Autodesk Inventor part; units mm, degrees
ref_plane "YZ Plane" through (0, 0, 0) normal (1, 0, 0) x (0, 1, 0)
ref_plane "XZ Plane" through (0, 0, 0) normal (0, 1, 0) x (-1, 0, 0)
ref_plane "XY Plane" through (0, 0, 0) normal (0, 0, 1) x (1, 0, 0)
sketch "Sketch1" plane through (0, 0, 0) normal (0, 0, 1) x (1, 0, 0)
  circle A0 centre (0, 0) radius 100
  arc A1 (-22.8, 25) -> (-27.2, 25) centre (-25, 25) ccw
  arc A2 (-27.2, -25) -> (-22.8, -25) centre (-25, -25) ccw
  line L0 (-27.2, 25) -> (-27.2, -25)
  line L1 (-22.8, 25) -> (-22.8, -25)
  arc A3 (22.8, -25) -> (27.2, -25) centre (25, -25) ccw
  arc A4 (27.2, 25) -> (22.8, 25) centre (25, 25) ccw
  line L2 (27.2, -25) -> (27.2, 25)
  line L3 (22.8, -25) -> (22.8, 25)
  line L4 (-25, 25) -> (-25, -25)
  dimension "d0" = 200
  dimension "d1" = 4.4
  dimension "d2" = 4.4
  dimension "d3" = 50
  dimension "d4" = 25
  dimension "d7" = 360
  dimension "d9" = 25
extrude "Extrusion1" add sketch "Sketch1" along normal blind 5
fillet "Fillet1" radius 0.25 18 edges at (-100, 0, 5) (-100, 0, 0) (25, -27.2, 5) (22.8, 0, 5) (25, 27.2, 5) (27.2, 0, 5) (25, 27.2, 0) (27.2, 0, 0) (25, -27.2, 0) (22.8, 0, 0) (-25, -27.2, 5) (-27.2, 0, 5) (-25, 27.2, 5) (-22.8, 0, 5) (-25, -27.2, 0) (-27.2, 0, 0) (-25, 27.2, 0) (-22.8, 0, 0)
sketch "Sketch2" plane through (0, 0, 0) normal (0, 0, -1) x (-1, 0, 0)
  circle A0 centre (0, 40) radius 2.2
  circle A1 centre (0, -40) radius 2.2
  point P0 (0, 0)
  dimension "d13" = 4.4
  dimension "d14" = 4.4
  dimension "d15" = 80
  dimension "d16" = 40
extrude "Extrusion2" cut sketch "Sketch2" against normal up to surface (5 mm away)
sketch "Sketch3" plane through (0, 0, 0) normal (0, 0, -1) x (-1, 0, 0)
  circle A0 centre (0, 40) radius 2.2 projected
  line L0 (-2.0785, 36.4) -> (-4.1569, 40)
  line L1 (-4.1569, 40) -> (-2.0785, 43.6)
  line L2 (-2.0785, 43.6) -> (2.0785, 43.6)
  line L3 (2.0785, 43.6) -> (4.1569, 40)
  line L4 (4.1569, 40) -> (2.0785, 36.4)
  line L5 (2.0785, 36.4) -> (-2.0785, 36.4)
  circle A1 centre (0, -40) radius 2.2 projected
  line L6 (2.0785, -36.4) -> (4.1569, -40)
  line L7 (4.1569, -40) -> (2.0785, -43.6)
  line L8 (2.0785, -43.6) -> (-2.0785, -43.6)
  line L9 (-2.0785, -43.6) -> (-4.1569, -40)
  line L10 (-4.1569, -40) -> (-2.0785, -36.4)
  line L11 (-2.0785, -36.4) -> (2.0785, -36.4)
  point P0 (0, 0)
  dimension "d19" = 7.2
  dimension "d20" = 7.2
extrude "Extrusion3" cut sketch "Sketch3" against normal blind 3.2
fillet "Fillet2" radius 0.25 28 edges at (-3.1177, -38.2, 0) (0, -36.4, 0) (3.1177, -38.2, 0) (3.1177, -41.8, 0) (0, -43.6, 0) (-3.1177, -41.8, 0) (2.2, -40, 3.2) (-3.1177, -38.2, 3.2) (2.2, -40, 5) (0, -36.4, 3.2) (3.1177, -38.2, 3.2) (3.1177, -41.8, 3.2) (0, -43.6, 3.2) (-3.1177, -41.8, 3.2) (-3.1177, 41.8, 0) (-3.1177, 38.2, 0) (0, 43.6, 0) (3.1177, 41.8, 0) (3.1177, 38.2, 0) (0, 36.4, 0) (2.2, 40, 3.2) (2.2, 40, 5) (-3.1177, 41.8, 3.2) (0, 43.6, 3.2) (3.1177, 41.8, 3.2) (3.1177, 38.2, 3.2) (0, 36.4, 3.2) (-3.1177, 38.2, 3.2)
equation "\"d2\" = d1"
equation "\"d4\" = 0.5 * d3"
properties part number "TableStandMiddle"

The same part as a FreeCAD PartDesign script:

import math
import FreeCAD as App
import Part
import Sketcher

V = App.Vector
Q = App.Units.Quantity


def edges_at(feature, points):
    """Names of the edges that pass closest to the given points."""
    edges = feature.Shape.Edges
    near = lambda p: min(range(len(edges)), key=lambda i: edges[i].distToShape(Part.Vertex(*p))[0])
    return sorted({f"Edge{near(p) + 1}" for p in points})


def add_polygon(sketch, points):
    """Adds a closed chain of lines whose ends are joined by coincident constraints."""
    first, n = sketch.GeometryCount, len(points)
    for a, b in zip(points, points[1:] + points[:1]):
        sketch.addGeometry(Part.LineSegment(App.Vector(*a, 0), App.Vector(*b, 0)), False)
    for i in range(n):
        sketch.addConstraint(Sketcher.Constraint("Coincident", first + i, 2, first + (i + 1) % n, 1))

doc = App.newDocument("Part")
body = doc.addObject("PartDesign::Body", "Body")

# Sketch on XY plane
sketch1 = body.newObject("Sketcher::SketchObject", "Sketch")
sketch1.AttachmentSupport = (doc.getObject("XY_Plane"), [""])
sketch1.MapMode = "FlatFace"
sketch1.addGeometry([
    Part.Circle(V(0, 0, 0), V(0, 0, 1), 100),  # 0
    Part.ArcOfCircle(Part.Circle(V(-25, 25, 0), V(0, 0, 1), 2.2), math.radians(0), math.radians(180)),  # 1
    Part.LineSegment(V(-22.8, 25, 0), V(-22.8, -25, 0)),  # 2
    Part.ArcOfCircle(Part.Circle(V(-25, -25, 0), V(0, 0, 1), 2.2), math.radians(180), math.radians(360)),  # 3
    Part.LineSegment(V(-27.2, -25, 0), V(-27.2, 25, 0)),  # 4
    Part.ArcOfCircle(Part.Circle(V(25, -25, 0), V(0, 0, 1), 2.2), math.radians(180), math.radians(360)),  # 5
    Part.LineSegment(V(22.8, -25, 0), V(22.8, 25, 0)),  # 6
    Part.ArcOfCircle(Part.Circle(V(25, 25, 0), V(0, 0, 1), 2.2), math.radians(0), math.radians(180)),  # 7
    Part.LineSegment(V(27.2, 25, 0), V(27.2, -25, 0)),  # 8
], False)
sketch1.addConstraint([
    Sketcher.Constraint("Tangent", 1, 1, 2, 1),
    Sketcher.Constraint("Tangent", 2, 2, 3, 2),
    Sketcher.Constraint("Tangent", 3, 1, 4, 1),
    Sketcher.Constraint("Tangent", 4, 2, 1, 2),
    Sketcher.Constraint("Tangent", 5, 1, 6, 1),
    Sketcher.Constraint("Tangent", 6, 2, 7, 2),
    Sketcher.Constraint("Tangent", 7, 1, 8, 1),
    Sketcher.Constraint("Tangent", 8, 2, 5, 2),
    Sketcher.Constraint("Vertical", 2),
    Sketcher.Constraint("Vertical", 4),
    Sketcher.Constraint("Vertical", 6),
    Sketcher.Constraint("Vertical", 8),
    Sketcher.Constraint("Coincident", 0, 3, -1, 1),
    Sketcher.Constraint("Equal", 3, 5),
    Sketcher.Constraint("Symmetric", 1, 3, 5, 3, -1, 1),
    Sketcher.Constraint("Horizontal", 3, 3, 5, 3),
    Sketcher.Constraint("Horizontal", 1, 3, 7, 3),
    Sketcher.Constraint("Diameter", 0, Q("200 mm")),
    Sketcher.Constraint("Radius", 1, Q("2.2 mm")),
    Sketcher.Constraint("DistanceY", 2, 2, 2, 1, Q("50 mm")),
    Sketcher.Constraint("DistanceX", 1, 3, -1, 1, Q("25 mm")),
])
pad1 = body.newObject("PartDesign::Pad", "Pad")
pad1.Profile = sketch1
pad1.Length = 5
doc.recompute()

fillet = body.newObject("PartDesign::Fillet", "Fillet")
fillet.Base = (pad1, edges_at(pad1, [
    (-100, 0, 5),
    (-100, 0, 0),
    (25, -27.2, 5),
    (22.8, 0, 5),
    (25, 27.2, 5),
    (27.2, 0, 5),
    (25, 27.2, 0),
    (27.2, 0, 0),
    (25, -27.2, 0),
    (22.8, 0, 0),
    (-25, -27.2, 5),
    (-27.2, 0, 5),
    (-25, 27.2, 5),
    (-22.8, 0, 5),
    (-25, -27.2, 0),
    (-27.2, 0, 0),
    (-25, 27.2, 0),
    (-22.8, 0, 0),
]))
fillet.Radius = 0.25

# Sketch on XY plane
sketch2 = body.newObject("Sketcher::SketchObject", "Sketch001")
sketch2.AttachmentSupport = (doc.getObject("XY_Plane"), [""])
sketch2.MapMode = "FlatFace"
sketch2.addGeometry([
    Part.Circle(V(0, 40, 0), V(0, 0, 1), 2.2),
    Part.Circle(V(0, -40, 0), V(0, 0, 1), 2.2),
], False)
sketch2.addConstraint([
    Sketcher.Constraint("Equal", 0, 1),
    Sketcher.Constraint("Symmetric", 0, 3, 1, 3, -1, 1),
    Sketcher.Constraint("PointOnObject", 0, 3, -2),
    Sketcher.Constraint("Diameter", 0, Q("4.4 mm")),
    Sketcher.Constraint("DistanceY", -1, 1, 0, 3, Q("40 mm")),
])
pocket1 = body.newObject("PartDesign::Pocket", "Pocket")
pocket1.Profile = sketch2
pocket1.Length = 5
pocket1.Reversed = True

# Sketch on XY plane
sketch3 = body.newObject("Sketcher::SketchObject", "Sketch002")
sketch3.AttachmentSupport = (doc.getObject("XY_Plane"), [""])
sketch3.MapMode = "FlatFace"
add_polygon(sketch3, [(4.1569, 40), (2.0785, 36.4), (-2.0785, 36.4), (-4.1569, 40), (-2.0785, 43.6), (2.0785, 43.6)])  # lines 0-5
sketch3.addGeometry(Part.Circle(V(0, 40, 0), V(0, 0, 1), 2.2), False)  # 6
add_polygon(sketch3, [(-4.1569, -40), (-2.0785, -36.4), (2.0785, -36.4), (4.1569, -40), (2.0785, -43.6), (-2.0785, -43.6)])  # lines 7-12
sketch3.addGeometry(Part.Circle(V(0, -40, 0), V(0, 0, 1), 2.2), False)  # 13
sketch3.addConstraint([
    Sketcher.Constraint("Horizontal", 1),
    Sketcher.Constraint("Horizontal", 4),
    Sketcher.Constraint("Horizontal", 8),
    Sketcher.Constraint("Horizontal", 11),
    Sketcher.Constraint("Equal", 6, 13),
    Sketcher.Constraint("Symmetric", 6, 3, 13, 3, -1, 1),
    Sketcher.Constraint("Symmetric", 0, 2, 7, 2, -1, 1),
    Sketcher.Constraint("Symmetric", 2, 2, 9, 2, -1, 1),
    Sketcher.Constraint("Symmetric", 3, 2, 10, 2, -1, 1),
    Sketcher.Constraint("Symmetric", 5, 2, 12, 2, -1, 1),
    Sketcher.Constraint("Symmetric", 2, 2, 5, 2, -2),
    Sketcher.Constraint("PointOnObject", 6, 3, -2),
    Sketcher.Constraint("Parallel", 0, 3),
    Sketcher.Constraint("Parallel", 2, 5),
    Sketcher.Constraint("Parallel", 5, 9),
    Sketcher.Constraint("Parallel", 9, 12),
    Sketcher.Constraint("Horizontal", 6, 3, 2, 2),
    Sketcher.Constraint("Vertical", 1, 2, 3, 2),
    Sketcher.Constraint("Vertical", 0, 2, 4, 2),
    Sketcher.Constraint("Diameter", 6, Q("4.4 mm")),
    Sketcher.Constraint("DistanceY", 1, 2, 3, 2, Q("7.2 mm")),
    Sketcher.Constraint("Angle", 0, Q("-119.9993 deg")),
    Sketcher.Constraint("DistanceY", -1, 1, 6, 3, Q("40 mm")),
    Sketcher.Constraint("DistanceX", 1, 2, 1, 1, Q("4.157 mm")),
])
pocket2 = body.newObject("PartDesign::Pocket", "Pocket001")
pocket2.Profile = sketch3
pocket2.Length = 3.2
pocket2.Reversed = True
doc.recompute()

fillet2 = body.newObject("PartDesign::Fillet", "Fillet001")
fillet2.Base = (pocket2, edges_at(pocket2, [
    (-3.118, -38.2, 0),
    (0, -36.4, 0),
    (3.118, -38.2, 0),
    (3.118, -41.8, 0),
    (0, -43.6, 0),
    (-3.118, -41.8, 0),
    (2.2, -40, 3.2),
    (-3.118, -38.2, 3.2),
    (2.2, -40, 5),
    (0, -36.4, 3.2),
    (3.118, -38.2, 3.2),
    (3.118, -41.8, 3.2),
    (0, -43.6, 3.2),
    (-3.118, -41.8, 3.2),
    (-3.118, 41.8, 0),
    (-3.118, 38.2, 0),
    (0, 43.6, 0),
    (3.118, 41.8, 0),
    (3.118, 38.2, 0),
    (0, 36.4, 0),
    (2.2, 40, 3.2),
    (2.2, 40, 5),
    (-3.118, 41.8, 3.2),
    (0, 43.6, 3.2),
    (3.118, 41.8, 3.2),
    (3.118, 38.2, 3.2),
    (0, 36.4, 3.2),
    (-3.118, 38.2, 3.2),
]))
fillet2.Radius = 0.25

doc.recompute()
